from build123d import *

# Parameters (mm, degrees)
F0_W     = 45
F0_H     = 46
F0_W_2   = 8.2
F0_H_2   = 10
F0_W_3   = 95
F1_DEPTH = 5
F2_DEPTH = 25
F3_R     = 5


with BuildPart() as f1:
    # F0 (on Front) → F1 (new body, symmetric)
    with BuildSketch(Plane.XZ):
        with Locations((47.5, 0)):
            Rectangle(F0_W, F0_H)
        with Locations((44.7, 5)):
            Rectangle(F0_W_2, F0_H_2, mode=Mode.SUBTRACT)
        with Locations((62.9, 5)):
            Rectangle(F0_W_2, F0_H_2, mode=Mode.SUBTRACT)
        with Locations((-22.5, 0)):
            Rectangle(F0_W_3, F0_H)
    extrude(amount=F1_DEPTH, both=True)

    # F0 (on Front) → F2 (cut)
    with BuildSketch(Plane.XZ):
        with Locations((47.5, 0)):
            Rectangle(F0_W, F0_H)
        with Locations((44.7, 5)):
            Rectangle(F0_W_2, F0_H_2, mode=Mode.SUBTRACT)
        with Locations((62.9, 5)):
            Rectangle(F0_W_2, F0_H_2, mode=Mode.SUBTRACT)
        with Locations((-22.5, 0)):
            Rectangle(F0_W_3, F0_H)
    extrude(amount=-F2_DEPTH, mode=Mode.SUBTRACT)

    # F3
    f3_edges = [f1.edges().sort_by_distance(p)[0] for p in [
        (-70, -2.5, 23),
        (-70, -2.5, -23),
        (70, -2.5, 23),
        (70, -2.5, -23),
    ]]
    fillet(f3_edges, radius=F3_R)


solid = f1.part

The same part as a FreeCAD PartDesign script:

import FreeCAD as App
import Part
import Sketcher
Q = App.Units.Quantity


def edges_at(feature, points):
    """Names of the edges that pass closest to the given points."""
    edges = feature.Shape.Edges
    near = lambda p: min(range(len(edges)), key=lambda i: edges[i].distToShape(Part.Vertex(*p))[0])
    return sorted({f"Edge{near(p) + 1}" for p in points})


def add_polygon(sketch, points):
    """Adds a closed chain of lines whose ends are joined by coincident constraints."""
    first, n = sketch.GeometryCount, len(points)
    for a, b in zip(points, points[1:] + points[:1]):
        sketch.addGeometry(Part.LineSegment(App.Vector(*a, 0), App.Vector(*b, 0)), False)
    for i in range(n):
        sketch.addConstraint(Sketcher.Constraint("Coincident", first + i, 2, first + (i + 1) % n, 1))

doc = App.newDocument("Part")
body = doc.addObject("PartDesign::Body", "Body")

# Sketch on XZ plane
sketch1 = doc.addObject("Sketcher::SketchObject", "Sketch")
body.addObject(sketch1)
sketch1.AttachmentSupport = (doc.XZ_Plane, [""])
sketch1.MapMode = "FlatFace"
add_polygon(sketch1, [(70, -23), (70, 23), (-70, 23), (-70, -23)])  # lines 0-3
add_polygon(sketch1, [(49, 0), (41, 0), (41, 10), (49, 10)])  # lines 4-7
add_polygon(sketch1, [(67, 0), (59, 0), (59, 10), (67, 10)])  # lines 8-11
sketch1.addConstraint(Sketcher.Constraint("Vertical", 0))
sketch1.addConstraint(Sketcher.Constraint("Horizontal", 1))
sketch1.addConstraint(Sketcher.Constraint("Vertical", 2))
sketch1.addConstraint(Sketcher.Constraint("Horizontal", 3))
sketch1.addConstraint(Sketcher.Constraint("Horizontal", 4))
sketch1.addConstraint(Sketcher.Constraint("Vertical", 5))
sketch1.addConstraint(Sketcher.Constraint("Horizontal", 6))
sketch1.addConstraint(Sketcher.Constraint("Vertical", 7))
sketch1.addConstraint(Sketcher.Constraint("Horizontal", 8))
sketch1.addConstraint(Sketcher.Constraint("Vertical", 9))
sketch1.addConstraint(Sketcher.Constraint("Horizontal", 10))
sketch1.addConstraint(Sketcher.Constraint("Vertical", 11))
sketch1.addConstraint(Sketcher.Constraint("Symmetric", 0, 2, 2, 2, -1, 1))
sketch1.addConstraint(Sketcher.Constraint("PointOnObject", 4, 2, -1))
sketch1.addConstraint(Sketcher.Constraint("PointOnObject", 8, 2, -1))
sketch1.addConstraint(Sketcher.Constraint("Horizontal", 6, 2, 9, 2))
sketch1.addConstraint(Sketcher.Constraint("Equal", 6, 8))
sketch1.addConstraint(Sketcher.Constraint("DistanceX", 1, 2, 1, 1, Q("140 mm")))
sketch1.addConstraint(Sketcher.Constraint("DistanceY", 0, 1, 0, 2, Q("46 mm")))
sketch1.addConstraint(Sketcher.Constraint("DistanceY", 5, 1, 5, 2, Q("10 mm")))
sketch1.addConstraint(Sketcher.Constraint("DistanceX", 4, 2, 4, 1, Q("8.2 mm")))
sketch1.addConstraint(Sketcher.Constraint("DistanceX", -1, 1, 10, 2, Q("67 mm")))
sketch1.addConstraint(Sketcher.Constraint("DistanceX", 7, 2, 8, 2, Q("10 mm")))
pad1 = doc.addObject("PartDesign::Pad", "Pad")
body.addObject(pad1)
pad1.Profile = sketch1
pad1.Length = 10
pad1.Midplane = True

# Sketch on XZ plane
sketch2 = doc.addObject("Sketcher::SketchObject", "Sketch001")
body.addObject(sketch2)
sketch2.AttachmentSupport = (doc.XZ_Plane, [""])
sketch2.MapMode = "FlatFace"
add_polygon(sketch2, [(70, -23), (70, 23), (-70, 23), (-70, -23)])  # lines 0-3
add_polygon(sketch2, [(49, 0), (41, 0), (41, 10), (49, 10)])  # lines 4-7
add_polygon(sketch2, [(67, 0), (59, 0), (59, 10), (67, 10)])  # lines 8-11
sketch2.addConstraint(Sketcher.Constraint("Vertical", 0))
sketch2.addConstraint(Sketcher.Constraint("Horizontal", 1))
sketch2.addConstraint(Sketcher.Constraint("Vertical", 2))
sketch2.addConstraint(Sketcher.Constraint("Horizontal", 3))
sketch2.addConstraint(Sketcher.Constraint("Horizontal", 4))
sketch2.addConstraint(Sketcher.Constraint("Vertical", 5))
sketch2.addConstraint(Sketcher.Constraint("Horizontal", 6))
sketch2.addConstraint(Sketcher.Constraint("Vertical", 7))
sketch2.addConstraint(Sketcher.Constraint("Horizontal", 8))
sketch2.addConstraint(Sketcher.Constraint("Vertical", 9))
sketch2.addConstraint(Sketcher.Constraint("Horizontal", 10))
sketch2.addConstraint(Sketcher.Constraint("Vertical", 11))
sketch2.addConstraint(Sketcher.Constraint("Symmetric", 0, 2, 2, 2, -1, 1))
sketch2.addConstraint(Sketcher.Constraint("PointOnObject", 4, 2, -1))
sketch2.addConstraint(Sketcher.Constraint("PointOnObject", 8, 2, -1))
sketch2.addConstraint(Sketcher.Constraint("Horizontal", 6, 2, 9, 2))
sketch2.addConstraint(Sketcher.Constraint("Equal", 6, 8))
sketch2.addConstraint(Sketcher.Constraint("DistanceX", 1, 2, 1, 1, Q("140 mm")))
sketch2.addConstraint(Sketcher.Constraint("DistanceY", 0, 1, 0, 2, Q("46 mm")))
sketch2.addConstraint(Sketcher.Constraint("DistanceY", 5, 1, 5, 2, Q("10 mm")))
sketch2.addConstraint(Sketcher.Constraint("DistanceX", 4, 2, 4, 1, Q("8.2 mm")))
sketch2.addConstraint(Sketcher.Constraint("DistanceX", -1, 1, 10, 2, Q("67 mm")))
sketch2.addConstraint(Sketcher.Constraint("DistanceX", 7, 2, 8, 2, Q("10 mm")))
pocket1 = doc.addObject("PartDesign::Pocket", "Pocket")
body.addObject(pocket1)
pocket1.Profile = sketch2
pocket1.Length = 25
doc.recompute()

fillet = doc.addObject("PartDesign::Fillet", "Fillet")
body.addObject(fillet)
fillet.Base = (pocket1, edges_at(pocket1, [
    (-70, -2.5, 23),
    (-70, -2.5, -23),
    (70, -2.5, 23),
    (70, -2.5, -23),
]))
fillet.Radius = 5

doc.recompute()
